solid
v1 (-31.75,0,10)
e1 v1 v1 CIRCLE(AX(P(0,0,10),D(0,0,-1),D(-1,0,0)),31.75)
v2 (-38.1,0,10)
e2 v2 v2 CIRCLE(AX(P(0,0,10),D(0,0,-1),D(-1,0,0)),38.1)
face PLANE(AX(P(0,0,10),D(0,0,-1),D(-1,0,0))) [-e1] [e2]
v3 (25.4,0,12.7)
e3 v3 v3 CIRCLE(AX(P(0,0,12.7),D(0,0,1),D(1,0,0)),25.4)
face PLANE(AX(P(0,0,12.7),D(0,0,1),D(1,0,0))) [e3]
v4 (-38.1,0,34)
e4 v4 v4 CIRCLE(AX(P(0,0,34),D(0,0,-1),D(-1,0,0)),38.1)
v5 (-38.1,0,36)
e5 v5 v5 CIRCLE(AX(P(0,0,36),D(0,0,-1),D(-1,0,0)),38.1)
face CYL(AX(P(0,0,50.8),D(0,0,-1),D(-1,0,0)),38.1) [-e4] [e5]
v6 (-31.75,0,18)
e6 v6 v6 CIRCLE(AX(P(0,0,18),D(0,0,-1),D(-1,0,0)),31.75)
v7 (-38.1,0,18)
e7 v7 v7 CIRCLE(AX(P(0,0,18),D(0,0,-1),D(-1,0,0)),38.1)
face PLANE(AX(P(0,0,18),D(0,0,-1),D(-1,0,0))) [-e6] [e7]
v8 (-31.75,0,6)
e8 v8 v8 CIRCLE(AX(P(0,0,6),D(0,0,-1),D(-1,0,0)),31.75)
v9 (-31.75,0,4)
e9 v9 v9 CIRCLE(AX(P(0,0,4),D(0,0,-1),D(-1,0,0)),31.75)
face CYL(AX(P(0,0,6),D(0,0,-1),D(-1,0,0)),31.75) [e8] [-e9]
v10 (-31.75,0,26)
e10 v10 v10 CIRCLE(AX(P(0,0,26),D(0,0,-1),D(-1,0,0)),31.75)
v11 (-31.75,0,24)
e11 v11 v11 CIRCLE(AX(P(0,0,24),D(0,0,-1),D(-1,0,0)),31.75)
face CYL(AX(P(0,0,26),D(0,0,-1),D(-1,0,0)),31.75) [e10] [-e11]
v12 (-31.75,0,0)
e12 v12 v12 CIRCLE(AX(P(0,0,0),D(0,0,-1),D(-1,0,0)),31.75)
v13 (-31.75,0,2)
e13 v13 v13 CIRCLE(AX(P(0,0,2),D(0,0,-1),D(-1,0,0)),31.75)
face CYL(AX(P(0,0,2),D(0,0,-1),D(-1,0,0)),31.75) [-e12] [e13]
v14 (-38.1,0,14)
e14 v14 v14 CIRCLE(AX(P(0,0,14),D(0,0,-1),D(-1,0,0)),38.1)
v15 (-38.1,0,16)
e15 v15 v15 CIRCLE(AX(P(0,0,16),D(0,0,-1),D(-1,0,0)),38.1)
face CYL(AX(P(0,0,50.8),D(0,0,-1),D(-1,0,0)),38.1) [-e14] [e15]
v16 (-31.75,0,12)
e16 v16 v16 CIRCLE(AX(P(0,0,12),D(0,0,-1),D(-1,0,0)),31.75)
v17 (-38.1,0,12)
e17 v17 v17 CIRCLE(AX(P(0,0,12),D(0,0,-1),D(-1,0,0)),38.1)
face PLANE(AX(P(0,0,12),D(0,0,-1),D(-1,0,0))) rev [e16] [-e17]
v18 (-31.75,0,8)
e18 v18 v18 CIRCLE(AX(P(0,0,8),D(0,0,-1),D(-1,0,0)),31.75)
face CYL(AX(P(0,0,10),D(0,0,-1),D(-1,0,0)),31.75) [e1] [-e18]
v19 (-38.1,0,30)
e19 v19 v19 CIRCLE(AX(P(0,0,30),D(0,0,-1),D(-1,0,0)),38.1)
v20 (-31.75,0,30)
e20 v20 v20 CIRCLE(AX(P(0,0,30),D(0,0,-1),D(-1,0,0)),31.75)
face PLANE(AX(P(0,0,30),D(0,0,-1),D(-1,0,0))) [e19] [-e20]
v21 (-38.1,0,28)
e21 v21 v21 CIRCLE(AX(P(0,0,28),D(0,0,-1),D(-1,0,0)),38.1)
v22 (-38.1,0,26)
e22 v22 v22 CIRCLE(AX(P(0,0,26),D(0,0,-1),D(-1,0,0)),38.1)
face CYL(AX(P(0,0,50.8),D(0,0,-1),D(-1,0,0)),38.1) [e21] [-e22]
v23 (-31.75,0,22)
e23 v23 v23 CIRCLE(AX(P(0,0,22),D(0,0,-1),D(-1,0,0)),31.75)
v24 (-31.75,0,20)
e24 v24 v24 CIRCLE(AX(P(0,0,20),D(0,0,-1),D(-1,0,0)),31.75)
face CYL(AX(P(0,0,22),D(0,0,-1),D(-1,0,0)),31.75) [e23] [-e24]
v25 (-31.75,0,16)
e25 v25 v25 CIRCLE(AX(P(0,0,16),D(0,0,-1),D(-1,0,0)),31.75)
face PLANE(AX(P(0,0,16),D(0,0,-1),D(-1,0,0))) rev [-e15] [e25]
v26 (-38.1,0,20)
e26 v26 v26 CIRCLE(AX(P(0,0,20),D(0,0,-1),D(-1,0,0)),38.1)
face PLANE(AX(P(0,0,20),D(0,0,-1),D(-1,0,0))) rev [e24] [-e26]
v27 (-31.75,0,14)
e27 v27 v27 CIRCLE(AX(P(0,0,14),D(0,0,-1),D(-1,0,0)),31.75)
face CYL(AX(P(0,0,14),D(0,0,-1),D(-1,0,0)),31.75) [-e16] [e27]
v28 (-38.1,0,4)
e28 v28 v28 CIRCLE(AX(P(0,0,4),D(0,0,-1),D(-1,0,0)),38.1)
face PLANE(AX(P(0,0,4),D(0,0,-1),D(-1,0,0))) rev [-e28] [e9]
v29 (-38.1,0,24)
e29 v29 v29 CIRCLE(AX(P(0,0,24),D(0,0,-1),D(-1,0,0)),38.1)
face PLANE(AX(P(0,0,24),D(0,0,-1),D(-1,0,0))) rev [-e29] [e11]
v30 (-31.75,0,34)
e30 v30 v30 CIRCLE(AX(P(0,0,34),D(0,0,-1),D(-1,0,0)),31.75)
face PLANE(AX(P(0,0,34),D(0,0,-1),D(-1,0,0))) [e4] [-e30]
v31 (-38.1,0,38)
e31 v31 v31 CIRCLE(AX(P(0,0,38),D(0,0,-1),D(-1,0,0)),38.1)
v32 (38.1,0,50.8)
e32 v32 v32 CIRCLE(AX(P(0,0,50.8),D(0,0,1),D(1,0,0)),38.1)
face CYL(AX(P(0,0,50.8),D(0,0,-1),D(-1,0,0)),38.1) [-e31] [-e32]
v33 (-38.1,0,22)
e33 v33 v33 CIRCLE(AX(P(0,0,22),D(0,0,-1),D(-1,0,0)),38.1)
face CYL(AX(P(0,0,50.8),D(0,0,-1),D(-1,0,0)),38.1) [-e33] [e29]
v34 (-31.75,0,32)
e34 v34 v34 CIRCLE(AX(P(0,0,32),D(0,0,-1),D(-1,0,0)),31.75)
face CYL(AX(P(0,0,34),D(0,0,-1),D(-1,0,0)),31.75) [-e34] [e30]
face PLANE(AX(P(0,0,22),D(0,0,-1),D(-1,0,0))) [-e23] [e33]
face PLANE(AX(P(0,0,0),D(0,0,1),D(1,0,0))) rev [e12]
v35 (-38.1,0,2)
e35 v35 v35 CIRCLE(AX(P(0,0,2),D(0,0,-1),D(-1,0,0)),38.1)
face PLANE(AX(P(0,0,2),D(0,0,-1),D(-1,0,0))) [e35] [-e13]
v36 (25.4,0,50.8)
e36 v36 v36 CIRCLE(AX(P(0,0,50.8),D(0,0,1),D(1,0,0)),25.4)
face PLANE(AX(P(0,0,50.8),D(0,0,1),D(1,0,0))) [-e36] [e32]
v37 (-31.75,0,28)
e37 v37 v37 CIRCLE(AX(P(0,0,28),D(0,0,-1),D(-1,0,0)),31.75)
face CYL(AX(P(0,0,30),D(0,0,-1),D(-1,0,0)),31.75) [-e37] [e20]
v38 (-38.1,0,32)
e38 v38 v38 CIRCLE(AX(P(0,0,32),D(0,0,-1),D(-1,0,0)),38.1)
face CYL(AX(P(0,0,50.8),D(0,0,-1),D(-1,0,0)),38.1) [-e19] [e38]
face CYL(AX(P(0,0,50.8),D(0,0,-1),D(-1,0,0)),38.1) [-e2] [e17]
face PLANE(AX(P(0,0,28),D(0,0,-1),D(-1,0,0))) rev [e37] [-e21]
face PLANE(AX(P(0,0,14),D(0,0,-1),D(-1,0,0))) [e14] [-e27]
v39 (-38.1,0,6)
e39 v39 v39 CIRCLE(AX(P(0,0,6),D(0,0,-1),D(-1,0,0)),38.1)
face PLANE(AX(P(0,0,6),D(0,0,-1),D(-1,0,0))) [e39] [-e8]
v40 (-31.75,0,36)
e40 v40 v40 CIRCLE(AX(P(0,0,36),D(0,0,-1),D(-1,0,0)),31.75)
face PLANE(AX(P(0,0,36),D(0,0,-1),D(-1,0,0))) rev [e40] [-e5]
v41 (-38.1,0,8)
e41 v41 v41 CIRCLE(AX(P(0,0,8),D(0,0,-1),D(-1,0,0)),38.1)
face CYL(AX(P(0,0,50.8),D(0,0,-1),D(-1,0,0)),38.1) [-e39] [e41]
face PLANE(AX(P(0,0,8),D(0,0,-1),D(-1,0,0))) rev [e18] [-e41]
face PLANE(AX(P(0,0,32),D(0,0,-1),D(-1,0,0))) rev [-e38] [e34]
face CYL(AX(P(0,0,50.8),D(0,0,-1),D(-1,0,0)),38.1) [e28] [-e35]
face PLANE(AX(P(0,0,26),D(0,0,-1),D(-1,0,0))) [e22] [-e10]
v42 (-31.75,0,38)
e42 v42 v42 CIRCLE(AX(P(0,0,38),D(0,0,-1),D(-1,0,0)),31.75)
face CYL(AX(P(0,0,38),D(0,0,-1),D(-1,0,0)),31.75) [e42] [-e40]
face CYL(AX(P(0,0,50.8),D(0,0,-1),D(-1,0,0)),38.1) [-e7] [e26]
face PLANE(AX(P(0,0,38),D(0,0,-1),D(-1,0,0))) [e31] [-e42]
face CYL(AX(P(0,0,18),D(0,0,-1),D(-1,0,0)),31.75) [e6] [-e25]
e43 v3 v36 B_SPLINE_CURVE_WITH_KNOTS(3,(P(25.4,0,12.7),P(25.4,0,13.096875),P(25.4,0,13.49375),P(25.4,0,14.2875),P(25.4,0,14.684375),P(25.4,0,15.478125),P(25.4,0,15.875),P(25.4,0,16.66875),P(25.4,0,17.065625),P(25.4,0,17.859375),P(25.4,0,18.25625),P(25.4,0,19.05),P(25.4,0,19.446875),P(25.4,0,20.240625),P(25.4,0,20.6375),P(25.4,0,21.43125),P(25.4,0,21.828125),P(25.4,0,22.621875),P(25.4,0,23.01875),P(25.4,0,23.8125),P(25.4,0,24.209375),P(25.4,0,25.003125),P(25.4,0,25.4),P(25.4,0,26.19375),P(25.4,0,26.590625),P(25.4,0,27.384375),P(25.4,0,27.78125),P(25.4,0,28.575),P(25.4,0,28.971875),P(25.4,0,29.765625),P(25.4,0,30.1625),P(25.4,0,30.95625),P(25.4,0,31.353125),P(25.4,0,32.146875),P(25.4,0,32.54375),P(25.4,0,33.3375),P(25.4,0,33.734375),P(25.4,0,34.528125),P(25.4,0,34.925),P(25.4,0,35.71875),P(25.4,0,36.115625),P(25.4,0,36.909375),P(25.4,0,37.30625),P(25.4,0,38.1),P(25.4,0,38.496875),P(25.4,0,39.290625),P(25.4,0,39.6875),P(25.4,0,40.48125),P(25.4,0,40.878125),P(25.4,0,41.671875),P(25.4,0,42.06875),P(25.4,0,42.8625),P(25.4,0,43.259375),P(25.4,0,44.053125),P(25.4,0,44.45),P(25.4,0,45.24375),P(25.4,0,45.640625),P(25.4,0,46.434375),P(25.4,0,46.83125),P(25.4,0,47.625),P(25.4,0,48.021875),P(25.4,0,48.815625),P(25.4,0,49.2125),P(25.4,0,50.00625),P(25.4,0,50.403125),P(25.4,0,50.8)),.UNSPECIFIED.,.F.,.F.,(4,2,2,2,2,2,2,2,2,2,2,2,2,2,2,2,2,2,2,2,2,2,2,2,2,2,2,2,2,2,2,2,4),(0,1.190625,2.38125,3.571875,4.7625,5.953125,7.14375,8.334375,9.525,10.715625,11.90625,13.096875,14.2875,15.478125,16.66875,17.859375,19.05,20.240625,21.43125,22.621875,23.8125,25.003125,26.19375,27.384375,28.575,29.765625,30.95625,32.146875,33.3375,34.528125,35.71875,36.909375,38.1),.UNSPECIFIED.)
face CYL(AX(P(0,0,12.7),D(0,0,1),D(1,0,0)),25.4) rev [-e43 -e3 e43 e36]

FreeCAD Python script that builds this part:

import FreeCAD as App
import Part
import Sketcher
Q = App.Units.Quantity

doc = App.newDocument("Part")
body = doc.addObject("PartDesign::Body", "Body")

# Sketch on XY plane
sketch1 = body.newObject("Sketcher::SketchObject", "Sketch")
sketch1.AttachmentSupport = (doc.getObject("XY_Plane"), [""])
sketch1.MapMode = "FlatFace"
sketch1.addGeometry(Part.Circle(App.Vector(0, 0, 0), App.Vector(0, 0, 1), 38), False)
sketch1.addConstraint([
    Sketcher.Constraint("Coincident", 0, 3, -1, 1),
    Sketcher.Constraint("Diameter", 0, Q("3 in")),
])
pad1 = body.newObject("PartDesign::Pad", "Pad")
pad1.Profile = sketch1
pad1.Length = Q("2 in")

# Sketch on XY plane
sketch2 = body.newObject("Sketcher::SketchObject", "Sketch001")
sketch2.AttachmentSupport = (doc.getObject("XY_Plane"), [""])
sketch2.MapMode = "FlatFace"
sketch2.addGeometry([
    Part.LineSegment(App.Vector(51, 51, 0), App.Vector(51, -51, 0)),  # 0
    Part.LineSegment(App.Vector(51, -51, 0), App.Vector(-51, -51, 0)),  # 1
    Part.LineSegment(App.Vector(-51, -51, 0), App.Vector(-51, 51, 0)),  # 2
    Part.LineSegment(App.Vector(-51, 51, 0), App.Vector(51, 51, 0)),  # 3
    Part.Circle(App.Vector(0, 0, 0), App.Vector(0, 0, 1), 32),  # 4
], False)
sketch2.addConstraint([
    Sketcher.Constraint("Coincident", 0, 2, 1, 1),
    Sketcher.Constraint("Coincident", 1, 2, 2, 1),
    Sketcher.Constraint("Coincident", 2, 2, 3, 1),
    Sketcher.Constraint("Coincident", 3, 2, 0, 1),
    Sketcher.Constraint("Vertical", 0),
    Sketcher.Constraint("Horizontal", 1),
    Sketcher.Constraint("Vertical", 2),
    Sketcher.Constraint("Horizontal", 3),
    Sketcher.Constraint("Coincident", 4, 3, -1, 1),
    Sketcher.Constraint("Symmetric", 0, 2, 2, 2, -1, 1),
    Sketcher.Constraint("Equal", 3, 0),
    Sketcher.Constraint("Diameter", 4, Q("2.5 in")),
    Sketcher.Constraint("DistanceX", 1, 2, 1, 1, Q("102.028 mm")),
])
pocket1 = body.newObject("PartDesign::Pocket", "Pocket")
pocket1.Profile = sketch2
pocket1.Length = 2
pocket1.Reversed = True
doc.recompute()

linearpattern = body.newObject("PartDesign::LinearPattern", "LinearPattern")
linearpattern.Originals = [pocket1]
linearpattern.Direction = (doc.getObject("Z_Axis"), [""])
linearpattern.Mode = "offset"
linearpattern.Offset = 4
linearpattern.Occurrences = 10
body.Tip = linearpattern

# Sketch on XY plane
sketch3 = body.newObject("Sketcher::SketchObject", "Sketch002")
sketch3.AttachmentSupport = (doc.getObject("XY_Plane"), [""])
sketch3.MapMode = "FlatFace"
sketch3.AttachmentOffset = App.Placement(App.Vector(0, 0, 2 * 25.4), App.Rotation())
sketch3.addGeometry(Part.Circle(App.Vector(0, 0, 0), App.Vector(0, 0, 1), 25), False)
sketch3.addConstraint([
    Sketcher.Constraint("Coincident", 0, 3, -1, 1),
    Sketcher.Constraint("Diameter", 0, Q("2 in")),
])
pocket2 = body.newObject("PartDesign::Pocket", "Pocket001")
pocket2.Profile = sketch3
pocket2.Length = Q("1.5 in")

doc.recompute()
